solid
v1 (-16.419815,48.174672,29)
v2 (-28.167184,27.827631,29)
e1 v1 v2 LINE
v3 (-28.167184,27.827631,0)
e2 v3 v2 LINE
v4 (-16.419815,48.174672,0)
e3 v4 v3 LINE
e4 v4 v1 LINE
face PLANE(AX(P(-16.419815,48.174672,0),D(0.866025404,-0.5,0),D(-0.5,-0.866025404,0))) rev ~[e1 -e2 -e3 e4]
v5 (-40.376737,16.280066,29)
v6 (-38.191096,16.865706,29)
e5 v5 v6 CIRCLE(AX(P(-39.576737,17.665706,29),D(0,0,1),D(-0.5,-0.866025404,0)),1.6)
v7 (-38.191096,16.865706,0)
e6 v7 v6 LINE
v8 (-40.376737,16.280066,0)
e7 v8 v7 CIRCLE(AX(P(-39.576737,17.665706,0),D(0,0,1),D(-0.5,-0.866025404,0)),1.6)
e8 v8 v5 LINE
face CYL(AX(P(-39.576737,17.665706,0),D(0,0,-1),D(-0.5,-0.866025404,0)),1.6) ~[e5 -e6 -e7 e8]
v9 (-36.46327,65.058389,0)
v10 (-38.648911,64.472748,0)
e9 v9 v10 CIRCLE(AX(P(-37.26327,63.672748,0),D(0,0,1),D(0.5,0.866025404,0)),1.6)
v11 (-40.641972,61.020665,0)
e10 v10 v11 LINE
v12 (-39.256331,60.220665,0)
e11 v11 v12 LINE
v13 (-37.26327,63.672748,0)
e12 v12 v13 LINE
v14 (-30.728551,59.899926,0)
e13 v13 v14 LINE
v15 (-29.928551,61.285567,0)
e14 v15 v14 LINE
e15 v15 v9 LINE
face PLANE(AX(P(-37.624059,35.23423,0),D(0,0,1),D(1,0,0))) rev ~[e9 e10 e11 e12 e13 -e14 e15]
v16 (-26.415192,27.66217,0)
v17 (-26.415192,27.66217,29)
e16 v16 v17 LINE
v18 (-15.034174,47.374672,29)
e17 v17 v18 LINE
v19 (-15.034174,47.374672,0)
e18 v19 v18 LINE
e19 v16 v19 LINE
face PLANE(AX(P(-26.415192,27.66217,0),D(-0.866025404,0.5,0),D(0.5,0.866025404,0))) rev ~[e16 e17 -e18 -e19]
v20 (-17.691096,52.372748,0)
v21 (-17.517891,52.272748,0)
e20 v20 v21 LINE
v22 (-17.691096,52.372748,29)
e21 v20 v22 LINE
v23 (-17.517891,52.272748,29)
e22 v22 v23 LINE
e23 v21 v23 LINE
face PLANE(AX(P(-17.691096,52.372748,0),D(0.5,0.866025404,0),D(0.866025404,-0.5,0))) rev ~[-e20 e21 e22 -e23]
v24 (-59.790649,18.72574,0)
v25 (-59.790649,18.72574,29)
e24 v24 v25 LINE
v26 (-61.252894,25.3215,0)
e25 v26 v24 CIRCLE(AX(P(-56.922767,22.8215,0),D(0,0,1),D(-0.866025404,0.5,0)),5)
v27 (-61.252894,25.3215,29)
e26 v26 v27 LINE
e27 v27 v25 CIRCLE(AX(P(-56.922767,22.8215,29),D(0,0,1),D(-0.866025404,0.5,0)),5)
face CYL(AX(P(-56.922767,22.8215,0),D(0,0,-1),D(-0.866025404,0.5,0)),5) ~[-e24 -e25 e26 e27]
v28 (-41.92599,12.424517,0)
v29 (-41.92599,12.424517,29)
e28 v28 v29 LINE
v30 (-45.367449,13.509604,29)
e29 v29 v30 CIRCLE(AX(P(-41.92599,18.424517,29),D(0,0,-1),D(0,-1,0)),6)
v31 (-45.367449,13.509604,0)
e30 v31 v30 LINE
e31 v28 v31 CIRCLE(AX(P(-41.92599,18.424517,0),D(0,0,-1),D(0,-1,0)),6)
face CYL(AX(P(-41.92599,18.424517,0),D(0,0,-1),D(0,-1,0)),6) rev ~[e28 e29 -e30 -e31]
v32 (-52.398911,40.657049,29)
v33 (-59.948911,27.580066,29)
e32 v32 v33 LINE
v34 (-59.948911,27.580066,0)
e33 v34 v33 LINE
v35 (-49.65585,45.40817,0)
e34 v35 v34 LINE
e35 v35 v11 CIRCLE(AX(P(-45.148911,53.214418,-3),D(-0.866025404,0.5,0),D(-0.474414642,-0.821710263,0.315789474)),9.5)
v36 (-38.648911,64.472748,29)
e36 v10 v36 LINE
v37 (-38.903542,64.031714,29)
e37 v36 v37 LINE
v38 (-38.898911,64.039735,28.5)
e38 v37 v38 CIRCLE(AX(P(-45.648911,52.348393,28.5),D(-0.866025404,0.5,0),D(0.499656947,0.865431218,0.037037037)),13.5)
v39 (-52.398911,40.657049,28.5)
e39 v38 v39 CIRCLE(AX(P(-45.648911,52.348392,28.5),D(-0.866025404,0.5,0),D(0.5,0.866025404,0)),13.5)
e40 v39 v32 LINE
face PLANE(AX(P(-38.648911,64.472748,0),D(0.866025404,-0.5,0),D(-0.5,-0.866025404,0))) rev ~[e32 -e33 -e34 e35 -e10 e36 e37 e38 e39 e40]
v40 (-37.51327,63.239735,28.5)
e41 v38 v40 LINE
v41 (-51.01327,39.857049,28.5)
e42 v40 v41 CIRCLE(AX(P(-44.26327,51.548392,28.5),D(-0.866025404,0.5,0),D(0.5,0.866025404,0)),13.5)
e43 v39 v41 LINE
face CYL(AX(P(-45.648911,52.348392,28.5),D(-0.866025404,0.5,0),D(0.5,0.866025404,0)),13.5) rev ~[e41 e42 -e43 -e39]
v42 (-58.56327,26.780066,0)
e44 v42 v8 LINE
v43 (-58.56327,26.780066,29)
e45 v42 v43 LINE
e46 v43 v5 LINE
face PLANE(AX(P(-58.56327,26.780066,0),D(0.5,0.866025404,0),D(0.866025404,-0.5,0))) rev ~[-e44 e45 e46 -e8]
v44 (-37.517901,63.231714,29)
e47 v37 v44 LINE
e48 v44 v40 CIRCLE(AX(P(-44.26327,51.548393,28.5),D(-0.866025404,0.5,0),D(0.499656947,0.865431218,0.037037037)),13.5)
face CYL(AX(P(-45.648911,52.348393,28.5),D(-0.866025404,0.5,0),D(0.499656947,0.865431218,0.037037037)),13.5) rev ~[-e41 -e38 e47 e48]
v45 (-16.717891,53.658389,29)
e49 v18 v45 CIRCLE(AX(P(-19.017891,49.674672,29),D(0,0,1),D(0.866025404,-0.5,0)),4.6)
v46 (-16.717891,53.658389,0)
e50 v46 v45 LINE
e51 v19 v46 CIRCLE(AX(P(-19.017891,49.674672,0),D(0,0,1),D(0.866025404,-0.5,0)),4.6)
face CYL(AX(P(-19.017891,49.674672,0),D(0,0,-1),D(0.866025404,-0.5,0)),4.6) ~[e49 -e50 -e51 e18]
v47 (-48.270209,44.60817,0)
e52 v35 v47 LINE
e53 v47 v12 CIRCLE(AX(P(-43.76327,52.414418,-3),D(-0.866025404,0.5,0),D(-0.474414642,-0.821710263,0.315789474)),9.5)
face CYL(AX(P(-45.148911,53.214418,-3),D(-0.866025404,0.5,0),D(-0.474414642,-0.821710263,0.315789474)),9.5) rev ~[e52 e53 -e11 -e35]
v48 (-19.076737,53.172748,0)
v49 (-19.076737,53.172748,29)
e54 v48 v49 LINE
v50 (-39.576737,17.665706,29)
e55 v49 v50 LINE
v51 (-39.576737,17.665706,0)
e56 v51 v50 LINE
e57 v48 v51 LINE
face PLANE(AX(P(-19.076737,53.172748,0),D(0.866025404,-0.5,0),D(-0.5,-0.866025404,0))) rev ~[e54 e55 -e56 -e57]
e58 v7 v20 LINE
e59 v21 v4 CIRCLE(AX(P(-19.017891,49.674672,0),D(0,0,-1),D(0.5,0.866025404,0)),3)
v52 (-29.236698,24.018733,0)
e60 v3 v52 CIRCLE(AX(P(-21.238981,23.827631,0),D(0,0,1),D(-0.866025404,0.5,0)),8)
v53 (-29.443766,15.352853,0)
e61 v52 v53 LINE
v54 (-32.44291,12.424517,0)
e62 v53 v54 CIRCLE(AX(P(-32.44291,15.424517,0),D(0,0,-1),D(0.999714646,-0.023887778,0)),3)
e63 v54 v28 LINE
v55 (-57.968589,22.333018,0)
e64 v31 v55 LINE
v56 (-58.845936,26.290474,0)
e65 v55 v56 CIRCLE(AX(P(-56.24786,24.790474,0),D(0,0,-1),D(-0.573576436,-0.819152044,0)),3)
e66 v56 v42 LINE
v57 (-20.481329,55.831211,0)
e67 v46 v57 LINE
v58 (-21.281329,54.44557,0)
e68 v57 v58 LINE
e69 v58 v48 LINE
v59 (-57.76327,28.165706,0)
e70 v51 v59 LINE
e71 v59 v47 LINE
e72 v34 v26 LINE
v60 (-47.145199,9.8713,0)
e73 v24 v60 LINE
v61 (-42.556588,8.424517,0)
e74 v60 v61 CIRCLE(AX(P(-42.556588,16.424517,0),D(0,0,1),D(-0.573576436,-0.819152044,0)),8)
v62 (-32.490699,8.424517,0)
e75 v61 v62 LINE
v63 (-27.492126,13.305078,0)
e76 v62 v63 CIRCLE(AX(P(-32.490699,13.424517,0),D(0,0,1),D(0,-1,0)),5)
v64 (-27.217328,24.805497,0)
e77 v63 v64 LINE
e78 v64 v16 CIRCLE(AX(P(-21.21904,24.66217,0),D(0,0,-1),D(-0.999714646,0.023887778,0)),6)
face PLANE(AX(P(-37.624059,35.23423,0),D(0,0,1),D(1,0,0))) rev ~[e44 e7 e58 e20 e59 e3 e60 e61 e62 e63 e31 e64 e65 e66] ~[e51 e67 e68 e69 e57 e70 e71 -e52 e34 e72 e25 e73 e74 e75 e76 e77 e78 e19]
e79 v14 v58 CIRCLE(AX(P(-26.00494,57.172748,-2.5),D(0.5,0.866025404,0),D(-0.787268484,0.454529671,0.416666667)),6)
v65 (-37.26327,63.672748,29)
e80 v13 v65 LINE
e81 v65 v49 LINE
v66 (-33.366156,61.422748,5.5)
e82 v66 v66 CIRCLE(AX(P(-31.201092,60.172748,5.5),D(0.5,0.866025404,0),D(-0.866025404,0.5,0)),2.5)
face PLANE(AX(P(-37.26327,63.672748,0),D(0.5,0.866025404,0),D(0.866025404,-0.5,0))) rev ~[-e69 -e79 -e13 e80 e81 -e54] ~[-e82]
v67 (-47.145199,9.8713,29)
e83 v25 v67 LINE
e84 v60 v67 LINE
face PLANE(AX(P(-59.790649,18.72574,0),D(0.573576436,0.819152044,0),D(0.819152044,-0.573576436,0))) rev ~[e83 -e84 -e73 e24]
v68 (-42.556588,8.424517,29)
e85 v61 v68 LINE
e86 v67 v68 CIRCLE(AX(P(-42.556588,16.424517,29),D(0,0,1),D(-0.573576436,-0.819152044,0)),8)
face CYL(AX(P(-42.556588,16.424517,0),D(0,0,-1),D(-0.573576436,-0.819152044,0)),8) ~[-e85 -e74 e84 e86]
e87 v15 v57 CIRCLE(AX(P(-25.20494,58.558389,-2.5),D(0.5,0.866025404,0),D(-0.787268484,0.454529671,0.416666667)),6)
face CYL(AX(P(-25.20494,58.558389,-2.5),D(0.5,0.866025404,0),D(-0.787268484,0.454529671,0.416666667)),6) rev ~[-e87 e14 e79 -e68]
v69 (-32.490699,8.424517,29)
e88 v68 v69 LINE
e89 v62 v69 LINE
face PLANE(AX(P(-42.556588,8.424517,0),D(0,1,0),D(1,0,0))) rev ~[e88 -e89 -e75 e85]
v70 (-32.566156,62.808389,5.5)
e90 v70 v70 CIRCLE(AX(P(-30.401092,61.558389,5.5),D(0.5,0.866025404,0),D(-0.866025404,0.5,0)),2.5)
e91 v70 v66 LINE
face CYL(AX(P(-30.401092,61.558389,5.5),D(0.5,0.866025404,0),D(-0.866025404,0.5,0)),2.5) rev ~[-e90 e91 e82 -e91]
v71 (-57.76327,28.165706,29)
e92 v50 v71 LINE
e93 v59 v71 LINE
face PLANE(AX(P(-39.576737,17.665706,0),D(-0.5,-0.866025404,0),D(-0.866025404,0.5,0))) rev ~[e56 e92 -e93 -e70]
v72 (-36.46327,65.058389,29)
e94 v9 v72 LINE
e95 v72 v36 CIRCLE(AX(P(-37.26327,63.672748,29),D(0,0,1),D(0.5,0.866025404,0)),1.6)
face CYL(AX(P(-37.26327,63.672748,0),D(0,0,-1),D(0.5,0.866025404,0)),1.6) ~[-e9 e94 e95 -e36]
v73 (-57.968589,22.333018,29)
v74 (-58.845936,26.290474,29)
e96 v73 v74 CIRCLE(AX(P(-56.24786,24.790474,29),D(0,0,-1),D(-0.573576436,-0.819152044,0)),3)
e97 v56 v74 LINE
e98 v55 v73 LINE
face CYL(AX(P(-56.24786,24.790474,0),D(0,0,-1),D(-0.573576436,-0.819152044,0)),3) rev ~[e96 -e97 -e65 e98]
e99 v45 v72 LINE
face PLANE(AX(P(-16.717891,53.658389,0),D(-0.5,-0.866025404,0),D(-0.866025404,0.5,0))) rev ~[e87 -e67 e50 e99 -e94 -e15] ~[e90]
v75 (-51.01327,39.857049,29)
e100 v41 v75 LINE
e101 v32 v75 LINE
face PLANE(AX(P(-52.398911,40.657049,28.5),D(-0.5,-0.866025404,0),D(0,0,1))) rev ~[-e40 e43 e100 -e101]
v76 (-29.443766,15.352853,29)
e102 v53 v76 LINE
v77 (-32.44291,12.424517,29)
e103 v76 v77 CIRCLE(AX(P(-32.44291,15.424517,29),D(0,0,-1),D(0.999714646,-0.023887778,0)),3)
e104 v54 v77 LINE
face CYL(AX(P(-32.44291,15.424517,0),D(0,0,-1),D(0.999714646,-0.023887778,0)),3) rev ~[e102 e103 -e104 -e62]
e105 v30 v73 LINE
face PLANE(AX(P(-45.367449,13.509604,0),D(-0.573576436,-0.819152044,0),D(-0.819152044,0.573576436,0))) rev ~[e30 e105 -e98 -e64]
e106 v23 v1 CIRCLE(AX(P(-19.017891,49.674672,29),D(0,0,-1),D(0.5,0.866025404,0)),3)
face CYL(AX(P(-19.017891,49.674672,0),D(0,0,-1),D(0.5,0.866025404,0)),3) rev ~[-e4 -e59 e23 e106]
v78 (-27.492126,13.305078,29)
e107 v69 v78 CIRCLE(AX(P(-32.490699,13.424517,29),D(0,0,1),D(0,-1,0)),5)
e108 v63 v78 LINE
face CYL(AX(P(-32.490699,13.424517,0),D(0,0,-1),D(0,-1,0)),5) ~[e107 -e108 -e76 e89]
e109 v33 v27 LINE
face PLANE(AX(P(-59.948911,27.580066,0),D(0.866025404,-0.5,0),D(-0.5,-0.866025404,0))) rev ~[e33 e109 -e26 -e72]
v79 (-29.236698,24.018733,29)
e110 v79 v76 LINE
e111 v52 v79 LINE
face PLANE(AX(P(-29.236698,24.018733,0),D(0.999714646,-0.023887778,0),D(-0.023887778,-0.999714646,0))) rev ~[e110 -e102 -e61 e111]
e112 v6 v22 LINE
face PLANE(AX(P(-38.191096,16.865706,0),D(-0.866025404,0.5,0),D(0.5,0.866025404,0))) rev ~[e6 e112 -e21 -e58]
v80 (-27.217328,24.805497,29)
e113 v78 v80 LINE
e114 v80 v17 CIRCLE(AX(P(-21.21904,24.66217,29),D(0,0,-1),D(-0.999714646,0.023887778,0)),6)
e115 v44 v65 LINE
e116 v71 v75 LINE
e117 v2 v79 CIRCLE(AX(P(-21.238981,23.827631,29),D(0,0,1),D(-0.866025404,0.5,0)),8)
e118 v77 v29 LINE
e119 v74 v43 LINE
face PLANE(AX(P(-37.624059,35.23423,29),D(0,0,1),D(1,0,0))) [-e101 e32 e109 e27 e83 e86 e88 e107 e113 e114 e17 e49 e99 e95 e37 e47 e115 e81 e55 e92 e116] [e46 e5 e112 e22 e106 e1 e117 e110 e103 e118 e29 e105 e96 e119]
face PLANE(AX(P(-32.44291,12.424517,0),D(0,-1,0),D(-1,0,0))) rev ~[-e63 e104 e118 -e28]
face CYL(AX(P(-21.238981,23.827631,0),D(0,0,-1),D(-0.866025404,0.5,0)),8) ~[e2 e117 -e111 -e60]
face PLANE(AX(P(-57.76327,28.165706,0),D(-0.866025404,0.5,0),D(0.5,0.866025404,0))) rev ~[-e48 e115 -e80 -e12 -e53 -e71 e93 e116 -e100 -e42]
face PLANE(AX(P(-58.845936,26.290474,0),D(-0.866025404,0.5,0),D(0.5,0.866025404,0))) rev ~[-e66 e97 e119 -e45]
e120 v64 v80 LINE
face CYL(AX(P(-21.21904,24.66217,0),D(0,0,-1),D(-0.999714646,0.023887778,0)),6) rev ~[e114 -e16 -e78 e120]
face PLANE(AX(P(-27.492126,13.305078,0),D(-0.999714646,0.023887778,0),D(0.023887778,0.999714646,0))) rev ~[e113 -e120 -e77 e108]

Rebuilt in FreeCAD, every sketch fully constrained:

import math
import FreeCAD as App
import Part
import Sketcher
Q = App.Units.Quantity


def add_polygon(sketch, points):
    """Adds a closed chain of lines whose ends are joined by coincident constraints."""
    first, n = sketch.GeometryCount, len(points)
    for a, b in zip(points, points[1:] + points[:1]):
        sketch.addGeometry(Part.LineSegment(App.Vector(*a, 0), App.Vector(*b, 0)), False)
    for i in range(n):
        sketch.addConstraint(Sketcher.Constraint("Coincident", first + i, 2, first + (i + 1) % n, 1))

doc = App.newDocument("Part")
body = doc.addObject("PartDesign::Body", "Body")

sketch1 = body.newObject("Sketcher::SketchObject", "Sketch")
sketch1.AttachmentSupport = (doc.getObject("XY_Plane"), [""])
sketch1.MapMode = "FlatFace"
sketch1.addGeometry(Part.ArcOfCircle(Part.Circle(App.Vector(-19.02, 49.67, 0), App.Vector(0, 0, 1), 4.6), math.radians(-30), math.radians(60)), False)
sketch1.addGeometry(Part.LineSegment(App.Vector(-16.72, 53.66, 0), App.Vector(-36.46, 65.06, 0)), False)
sketch1.addGeometry(Part.ArcOfCircle(Part.Circle(App.Vector(-37.26, 63.67, 0), App.Vector(0, 0, 1), 1.6), math.radians(60), math.radians(150)), False)
sketch1.addGeometry(Part.LineSegment(App.Vector(-38.65, 64.47, 0), App.Vector(-59.95, 27.58, 0)), False)
sketch1.addGeometry(Part.LineSegment(App.Vector(-59.95, 27.58, 0), App.Vector(-61.25, 25.32, 0)), False)
sketch1.addGeometry(Part.ArcOfCircle(Part.Circle(App.Vector(-56.92, 22.82, 0), App.Vector(0, 0, 1), 5), math.radians(150), math.radians(235)), False)
sketch1.addGeometry(Part.LineSegment(App.Vector(-59.79, 18.73, 0), App.Vector(-47.15, 9.87, 0)), False)
sketch1.addGeometry(Part.ArcOfCircle(Part.Circle(App.Vector(-42.56, 16.42, 0), App.Vector(0, 0, 1), 8), math.radians(-125), math.radians(-90)), False)
sketch1.addGeometry(Part.LineSegment(App.Vector(-42.56, 8.42, 0), App.Vector(-32.49, 8.42, 0)), False)
sketch1.addGeometry(Part.ArcOfCircle(Part.Circle(App.Vector(-32.49, 13.42, 0), App.Vector(0, 0, 1), 5), math.radians(-90), math.radians(-1)), False)
sketch1.addGeometry(Part.LineSegment(App.Vector(-27.49, 13.31, 0), App.Vector(-27.22, 24.81, 0)), False)
sketch1.addGeometry(Part.ArcOfCircle(Part.Circle(App.Vector(-21.22, 24.66, 0), App.Vector(0, 0, 1), 6), math.radians(150), math.radians(179)), False)
sketch1.addGeometry(Part.LineSegment(App.Vector(-26.42, 27.66, 0), App.Vector(-15.03, 47.37, 0)), False)
sketch1.addGeometry(Part.LineSegment(App.Vector(-58.85, 26.29, 0), App.Vector(-58.56, 26.78, 0)), False)
sketch1.addGeometry(Part.LineSegment(App.Vector(-58.56, 26.78, 0), App.Vector(-40.38, 16.28, 0)), False)
sketch1.addGeometry(Part.ArcOfCircle(Part.Circle(App.Vector(-39.58, 17.67, 0), App.Vector(0, 0, 1), 1.6), math.radians(-120), math.radians(-30)), False)
sketch1.addGeometry(Part.LineSegment(App.Vector(-38.19, 16.87, 0), App.Vector(-17.69, 52.37, 0)), False)
sketch1.addGeometry(Part.LineSegment(App.Vector(-17.69, 52.37, 0), App.Vector(-17.52, 52.27, 0)), False)
sketch1.addGeometry(Part.ArcOfCircle(Part.Circle(App.Vector(-19.02, 49.67, 0), App.Vector(0, 0, 1), 3), math.radians(-30), math.radians(60)), False)
sketch1.addGeometry(Part.LineSegment(App.Vector(-16.42, 48.17, 0), App.Vector(-28.17, 27.83, 0)), False)
sketch1.addGeometry(Part.ArcOfCircle(Part.Circle(App.Vector(-21.24, 23.83, 0), App.Vector(0, 0, 1), 8), math.radians(150), math.radians(179)), False)
sketch1.addGeometry(Part.LineSegment(App.Vector(-29.24, 24.02, 0), App.Vector(-29.44, 15.35, 0)), False)
sketch1.addGeometry(Part.ArcOfCircle(Part.Circle(App.Vector(-32.44, 15.42, 0), App.Vector(0, 0, 1), 3), math.radians(-90), math.radians(-1)), False)
sketch1.addGeometry(Part.LineSegment(App.Vector(-32.44, 12.42, 0), App.Vector(-41.93, 12.42, 0)), False)
sketch1.addGeometry(Part.ArcOfCircle(Part.Circle(App.Vector(-41.93, 18.42, 0), App.Vector(0, 0, 1), 6), math.radians(-125), math.radians(-90)), False)
sketch1.addGeometry(Part.LineSegment(App.Vector(-45.37, 13.51, 0), App.Vector(-57.97, 22.33, 0)), False)
sketch1.addGeometry(Part.ArcOfCircle(Part.Circle(App.Vector(-56.25, 24.79, 0), App.Vector(0, 0, 1), 3), math.radians(150), math.radians(235)), False)
add_polygon(sketch1, [(-57.76, 28.17), (-37.26, 63.67), (-19.08, 53.17), (-39.58, 17.67)])
sketch1.addConstraint([
    Sketcher.Constraint("Tangent", 0, 2, 1, 1),
    Sketcher.Constraint("Tangent", 1, 2, 2, 1),
    Sketcher.Constraint("Tangent", 2, 2, 3, 1),
    Sketcher.Constraint("Coincident", 3, 2, 4, 1),
    Sketcher.Constraint("Tangent", 4, 2, 5, 1),
    Sketcher.Constraint("Tangent", 5, 2, 6, 1),
    Sketcher.Constraint("Tangent", 6, 2, 7, 1),
    Sketcher.Constraint("Tangent", 7, 2, 8, 1),
    Sketcher.Constraint("Tangent", 8, 2, 9, 1),
    Sketcher.Constraint("Tangent", 9, 2, 10, 1),
    Sketcher.Constraint("Tangent", 10, 2, 11, 2),
    Sketcher.Constraint("Tangent", 11, 1, 12, 1),
    Sketcher.Constraint("Tangent", 12, 2, 0, 1),
    Sketcher.Constraint("Coincident", 13, 2, 14, 1),
    Sketcher.Constraint("Tangent", 14, 2, 15, 1),
    Sketcher.Constraint("Tangent", 15, 2, 16, 1),
    Sketcher.Constraint("Coincident", 16, 2, 17, 1),
    Sketcher.Constraint("Tangent", 17, 2, 18, 2),
    Sketcher.Constraint("Tangent", 18, 1, 19, 1),
    Sketcher.Constraint("Tangent", 19, 2, 20, 1),
    Sketcher.Constraint("Tangent", 20, 2, 21, 1),
    Sketcher.Constraint("Tangent", 21, 2, 22, 2),
    Sketcher.Constraint("Tangent", 22, 1, 23, 1),
    Sketcher.Constraint("Tangent", 23, 2, 24, 2),
    Sketcher.Constraint("Tangent", 24, 1, 25, 1),
    Sketcher.Constraint("Tangent", 25, 2, 26, 2),
    Sketcher.Constraint("Tangent", 26, 1, 13, 1),
    Sketcher.Constraint("Horizontal", 8),
    Sketcher.Constraint("Horizontal", 23),
    Sketcher.Constraint("Coincident", 18, 3, 0, 3),
    Sketcher.Constraint("Coincident", 27, 2, 2, 3),
    Sketcher.Constraint("Coincident", 29, 2, 15, 3),
    Sketcher.Constraint("Equal", 5, 9),
    Sketcher.Constraint("Equal", 2, 15),
    Sketcher.Constraint("Equal", 7, 20),
    Sketcher.Constraint("Equal", 18, 22),
    Sketcher.Constraint("Equal", 11, 24),
    Sketcher.Constraint("Equal", 22, 26),
    Sketcher.Constraint("Perpendicular", 1, 3),
    Sketcher.Constraint("Parallel", 3, 4),
    Sketcher.Constraint("Parallel", 4, 12),
    Sketcher.Constraint("Parallel", 12, 13),
    Sketcher.Constraint("Perpendicular", 13, 14),
    Sketcher.Constraint("Perpendicular", 14, 16),
    Sketcher.Constraint("Perpendicular", 16, 17),
    Sketcher.Constraint("Perpendicular", 17, 19),
    Sketcher.Constraint("Parallel", 10, 21),
    Sketcher.Constraint("Parallel", 6, 25),
    Sketcher.Constraint("Parallel", 19, 27),
    Sketcher.Constraint("Perpendicular", 27, 28),
    Sketcher.Constraint("Perpendicular", 28, 29),
    Sketcher.Constraint("Perpendicular", 29, 30),
    Sketcher.Constraint("Equal", 16, 27),
    Sketcher.Constraint("Equal", 14, 28),
    Sketcher.Constraint("Radius", 5, Q("5 mm")),
    Sketcher.Constraint("Radius", 7, Q("8 mm")),
    Sketcher.Constraint("Radius", 11, Q("6 mm")),
    Sketcher.Constraint("Radius", 18, Q("3 mm")),
    Sketcher.Constraint("Radius", 0, Q("4.6 mm")),
    Sketcher.Constraint("Angle", 1, Q("150 deg")),
    Sketcher.Constraint("Angle", 6, Q("-35 deg")),
    Sketcher.Constraint("Distance", 14, Q("21 mm")),
    Sketcher.Constraint("Distance", 16, Q("41 mm")),
    Sketcher.Constraint("DistanceY", 9, 3, 22, 3, Q("2 mm")),
    Sketcher.Constraint("Distance", 1, Q("22.8 mm")),
    Sketcher.Constraint("Distance", 3, Q("42.6 mm")),
    Sketcher.Constraint("Distance", 10, Q("11.503701 mm")),
    Sketcher.Constraint("DistanceX", 8, 1, 8, 2, Q("10.065889 mm")),
    Sketcher.Constraint("DistanceX", 23, 2, 23, 1, Q("9.483081 mm")),
    Sketcher.Constraint("DistanceY", -1, 1, 5, 3, Q("22.8215 mm")),
    Sketcher.Constraint("DistanceX", 9, 3, -1, 1, Q("32.490699 mm")),
    Sketcher.Constraint("DistanceY", -1, 1, 6, 2, Q("9.8713 mm")),
    Sketcher.Constraint("DistanceX", 20, 2, -1, 1, Q("29.236698 mm")),
    Sketcher.Constraint("DistanceY", 11, 3, 0, 3, Q("25.012502 mm")),
])
pad1 = body.newObject("PartDesign::Pad", "Pad")
pad1.Profile = sketch1
pad1.Length = 29

sketch2 = body.newObject("Sketcher::SketchObject", "Sketch001")
sketch2.Placement = App.Placement(App.Vector(-56.904202, 32.853656, 0), App.Rotation(App.Vector(-0.5, -0.866025404, 0), App.Vector(0, 0, 1), App.Vector(-0.866025404, 0.5, 0), "ZXY"))
sketch2.addGeometry([
    Part.ArcOfCircle(Part.Circle(App.Vector(-22.5, 28.5, 0), App.Vector(0, 0, 1), 13.5), math.radians(177.88), math.radians(180)),
    Part.ArcOfCircle(Part.Circle(App.Vector(-22.5, 28.5, 0), App.Vector(0, 0, 1), 13.5), math.radians(180), math.radians(360)),
    Part.LineSegment(App.Vector(-9, 28.5, 0), App.Vector(-9, 29, 0)),
    Part.LineSegment(App.Vector(-9, 29, 0), App.Vector(-36, 29, 0)),
    Part.ArcOfCircle(Part.Circle(App.Vector(-23.5, -3, 0), App.Vector(0, 0, 1), 9.5), math.radians(18), math.radians(162)),
    Part.LineSegment(App.Vector(-32.5, 0, 0), App.Vector(-14.5, 0, 0)),
], False)
sketch2.addConstraint([
    Sketcher.Constraint("Tangent", 0, 2, 1, 1),
    Sketcher.Constraint("Tangent", 1, 2, 2, 1),
    Sketcher.Constraint("Coincident", 2, 2, 3, 1),
    Sketcher.Constraint("Coincident", 3, 2, 0, 1),
    Sketcher.Constraint("Coincident", 4, 1, 5, 2),
    Sketcher.Constraint("Coincident", 5, 1, 4, 2),
    Sketcher.Constraint("Vertical", 2),
    Sketcher.Constraint("Horizontal", 3),
    Sketcher.Constraint("Horizontal", 5),
    Sketcher.Constraint("Equal", 0, 1),
    Sketcher.Constraint("PointOnObject", 4, 1, -1),
    Sketcher.Constraint("Horizontal", 1, 3, 0, 2),
    Sketcher.Constraint("Radius", 0, Q("13.5 mm")),
    Sketcher.Constraint("Radius", 4, Q("9.5 mm")),
    Sketcher.Constraint("DistanceY", 2, 1, 2, 2, Q("0.5 mm")),
    Sketcher.Constraint("DistanceY", 4, 3, -1, 1, Q("3 mm")),
    Sketcher.Constraint("DistanceY", -1, 1, 2, 2, Q("29 mm")),
    Sketcher.Constraint("DistanceX", 4, 3, 0, 3, Q("1 mm")),
    Sketcher.Constraint("DistanceX", 3, 2, -1, 1, Q("36.00132 mm")),
])
pocket1 = body.newObject("PartDesign::Pocket", "Pocket")
pocket1.Profile = sketch2
pocket1.Length = 2

sketch3 = body.newObject("Sketcher::SketchObject", "Sketch002")
sketch3.Placement = App.Placement(App.Vector(19.055291, 33.004732, 0), App.Rotation(App.Vector(-0.866025404, 0.5, 0), App.Vector(0, 0, 1), App.Vector(0.5, 0.866025404, 0), "ZXY"))
sketch3.addGeometry([
    Part.LineSegment(App.Vector(45.7, 0, 0), App.Vector(56.6, 0, 0)),
    Part.ArcOfCircle(Part.Circle(App.Vector(51.1, -2.5, 0), App.Vector(0, 0, 1), 6), math.radians(25), math.radians(155)),
    Part.Circle(App.Vector(57.1, 5.5, 0), App.Vector(0, 0, 1), 2.5),
], False)
sketch3.addConstraint([
    Sketcher.Constraint("Coincident", 0, 1, 1, 2),
    Sketcher.Constraint("Coincident", 1, 1, 0, 2),
    Sketcher.Constraint("Horizontal", 0),
    Sketcher.Constraint("PointOnObject", 0, 1, -1),
    Sketcher.Constraint("Diameter", 2, Q("5 mm")),
    Sketcher.Constraint("Radius", 1, Q("6 mm")),
    Sketcher.Constraint("DistanceX", 1, 3, 2, 3, Q("6 mm")),
    Sketcher.Constraint("DistanceY", 1, 3, 2, 3, Q("8 mm")),
    Sketcher.Constraint("DistanceY", 1, 3, -1, 1, Q("2.5 mm")),
    Sketcher.Constraint("DistanceX", -1, 1, 1, 1, Q("56.561669 mm")),
])
pocket2 = body.newObject("PartDesign::Pocket", "Pocket001")
pocket2.Profile = sketch3
pocket2.Length = 2

doc.recompute()
